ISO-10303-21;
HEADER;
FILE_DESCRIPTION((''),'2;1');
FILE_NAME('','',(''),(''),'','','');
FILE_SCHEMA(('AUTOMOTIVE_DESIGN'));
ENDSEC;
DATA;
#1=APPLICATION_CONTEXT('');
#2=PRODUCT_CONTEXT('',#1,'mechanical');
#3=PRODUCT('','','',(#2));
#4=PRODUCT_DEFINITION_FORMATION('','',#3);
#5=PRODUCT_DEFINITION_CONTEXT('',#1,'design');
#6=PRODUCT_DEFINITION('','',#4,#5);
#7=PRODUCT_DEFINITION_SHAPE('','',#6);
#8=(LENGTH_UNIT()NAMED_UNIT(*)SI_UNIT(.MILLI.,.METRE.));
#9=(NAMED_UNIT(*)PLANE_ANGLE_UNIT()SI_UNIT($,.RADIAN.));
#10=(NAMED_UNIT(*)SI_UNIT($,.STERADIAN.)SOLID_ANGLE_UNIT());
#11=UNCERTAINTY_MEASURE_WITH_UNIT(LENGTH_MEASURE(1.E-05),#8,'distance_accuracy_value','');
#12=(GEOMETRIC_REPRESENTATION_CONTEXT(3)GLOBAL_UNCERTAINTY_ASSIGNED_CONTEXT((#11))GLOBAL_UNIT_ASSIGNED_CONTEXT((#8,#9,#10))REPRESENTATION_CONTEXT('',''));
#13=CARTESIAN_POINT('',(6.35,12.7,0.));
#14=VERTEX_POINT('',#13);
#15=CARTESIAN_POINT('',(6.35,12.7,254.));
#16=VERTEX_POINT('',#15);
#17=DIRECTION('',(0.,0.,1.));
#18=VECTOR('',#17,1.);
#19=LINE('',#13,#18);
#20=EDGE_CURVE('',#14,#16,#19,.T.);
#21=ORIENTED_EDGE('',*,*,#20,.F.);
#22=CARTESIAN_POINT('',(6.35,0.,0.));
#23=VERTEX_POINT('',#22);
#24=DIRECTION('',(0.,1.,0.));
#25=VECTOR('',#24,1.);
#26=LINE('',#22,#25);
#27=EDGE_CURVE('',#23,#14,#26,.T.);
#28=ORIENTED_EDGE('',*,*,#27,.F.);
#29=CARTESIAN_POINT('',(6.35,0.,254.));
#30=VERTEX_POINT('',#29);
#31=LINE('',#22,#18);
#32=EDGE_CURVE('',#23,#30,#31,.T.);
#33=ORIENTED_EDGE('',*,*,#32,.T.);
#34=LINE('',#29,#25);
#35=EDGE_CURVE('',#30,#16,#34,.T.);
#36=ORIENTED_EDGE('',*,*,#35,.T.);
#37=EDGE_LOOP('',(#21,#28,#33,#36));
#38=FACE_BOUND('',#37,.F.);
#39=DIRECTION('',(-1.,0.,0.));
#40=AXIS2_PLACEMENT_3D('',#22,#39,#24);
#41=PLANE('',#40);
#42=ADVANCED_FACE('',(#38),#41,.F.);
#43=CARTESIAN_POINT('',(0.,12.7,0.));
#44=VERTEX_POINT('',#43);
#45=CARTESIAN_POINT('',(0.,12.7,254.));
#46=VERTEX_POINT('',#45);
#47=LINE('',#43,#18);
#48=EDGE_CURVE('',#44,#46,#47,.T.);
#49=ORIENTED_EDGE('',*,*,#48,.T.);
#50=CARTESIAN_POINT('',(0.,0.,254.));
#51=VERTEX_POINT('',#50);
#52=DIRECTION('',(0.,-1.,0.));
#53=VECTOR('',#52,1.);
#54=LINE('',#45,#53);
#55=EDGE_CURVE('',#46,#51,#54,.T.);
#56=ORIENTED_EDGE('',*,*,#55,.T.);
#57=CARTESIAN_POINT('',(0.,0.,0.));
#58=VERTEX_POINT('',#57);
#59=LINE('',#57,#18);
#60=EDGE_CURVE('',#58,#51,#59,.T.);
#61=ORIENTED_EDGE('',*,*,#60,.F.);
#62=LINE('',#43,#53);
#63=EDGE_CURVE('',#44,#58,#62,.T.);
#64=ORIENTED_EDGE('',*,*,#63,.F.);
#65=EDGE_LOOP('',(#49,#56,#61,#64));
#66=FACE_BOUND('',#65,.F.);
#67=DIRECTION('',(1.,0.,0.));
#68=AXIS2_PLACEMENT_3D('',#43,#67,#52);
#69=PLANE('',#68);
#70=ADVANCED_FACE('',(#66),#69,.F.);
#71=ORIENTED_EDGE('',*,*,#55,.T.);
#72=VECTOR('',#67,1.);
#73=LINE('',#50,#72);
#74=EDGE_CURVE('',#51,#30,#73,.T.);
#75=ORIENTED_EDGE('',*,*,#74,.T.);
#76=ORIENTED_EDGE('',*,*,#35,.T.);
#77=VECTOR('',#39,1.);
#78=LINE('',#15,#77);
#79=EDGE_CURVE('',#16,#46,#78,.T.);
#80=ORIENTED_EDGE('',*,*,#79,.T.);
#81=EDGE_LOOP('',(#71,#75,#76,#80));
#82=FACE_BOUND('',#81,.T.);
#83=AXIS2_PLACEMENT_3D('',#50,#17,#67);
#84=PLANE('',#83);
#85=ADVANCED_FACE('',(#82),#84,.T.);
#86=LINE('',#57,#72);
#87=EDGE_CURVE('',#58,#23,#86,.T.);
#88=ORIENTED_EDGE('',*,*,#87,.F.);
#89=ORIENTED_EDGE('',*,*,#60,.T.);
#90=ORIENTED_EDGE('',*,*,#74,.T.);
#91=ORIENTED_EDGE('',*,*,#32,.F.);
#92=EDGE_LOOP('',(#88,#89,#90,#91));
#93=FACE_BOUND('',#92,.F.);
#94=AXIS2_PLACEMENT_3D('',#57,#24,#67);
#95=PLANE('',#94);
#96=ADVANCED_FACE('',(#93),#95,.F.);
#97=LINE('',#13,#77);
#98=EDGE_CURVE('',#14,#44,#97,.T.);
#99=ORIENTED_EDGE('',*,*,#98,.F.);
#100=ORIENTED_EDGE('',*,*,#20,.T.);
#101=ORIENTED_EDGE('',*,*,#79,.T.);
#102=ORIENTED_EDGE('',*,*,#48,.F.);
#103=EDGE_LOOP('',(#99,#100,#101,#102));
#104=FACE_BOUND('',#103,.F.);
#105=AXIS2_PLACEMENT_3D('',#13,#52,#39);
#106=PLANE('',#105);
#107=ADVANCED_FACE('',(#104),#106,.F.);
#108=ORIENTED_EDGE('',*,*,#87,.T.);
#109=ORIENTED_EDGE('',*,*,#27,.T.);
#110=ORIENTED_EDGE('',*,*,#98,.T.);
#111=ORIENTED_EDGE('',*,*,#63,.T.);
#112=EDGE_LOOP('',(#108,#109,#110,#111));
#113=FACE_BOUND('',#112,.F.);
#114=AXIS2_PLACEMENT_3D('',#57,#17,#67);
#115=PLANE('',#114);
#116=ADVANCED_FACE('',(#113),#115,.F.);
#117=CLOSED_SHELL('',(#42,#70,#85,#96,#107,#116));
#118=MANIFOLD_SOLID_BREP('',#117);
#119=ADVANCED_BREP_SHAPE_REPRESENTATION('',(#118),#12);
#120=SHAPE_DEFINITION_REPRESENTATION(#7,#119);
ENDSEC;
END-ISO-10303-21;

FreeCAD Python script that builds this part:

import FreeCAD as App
import Part
import Sketcher

V = App.Vector
Q = App.Units.Quantity


def add_polygon(sketch, points):
    """Adds a closed chain of lines whose ends are joined by coincident constraints."""
    first, n = sketch.GeometryCount, len(points)
    for a, b in zip(points, points[1:] + points[:1]):
        sketch.addGeometry(Part.LineSegment(App.Vector(*a, 0), App.Vector(*b, 0)), False)
    for i in range(n):
        sketch.addConstraint(Sketcher.Constraint("Coincident", first + i, 2, first + (i + 1) % n, 1))

doc = App.newDocument("Part")
body = doc.addObject("PartDesign::Body", "Body")

# Sketch on XY plane
sketch1 = body.newObject("Sketcher::SketchObject", "Sketch")
sketch1.AttachmentSupport = (doc.getObject("XY_Plane"), [""])
sketch1.MapMode = "FlatFace"
add_polygon(sketch1, [(0, 13), (0, 0), (6, 0), (6, 13)])  # lines 0-3
sketch1.addConstraint(Sketcher.Constraint("Vertical", 0))
sketch1.addConstraint(Sketcher.Constraint("Horizontal", 1))
sketch1.addConstraint(Sketcher.Constraint("Vertical", 2))
sketch1.addConstraint(Sketcher.Constraint("Horizontal", 3))
sketch1.addConstraint(Sketcher.Constraint("Coincident", 0, 2, -1, 1))
sketch1.addConstraint(Sketcher.Constraint("DistanceY", 0, 2, 0, 1, Q("0.5 in")))
sketch1.addConstraint(Sketcher.Constraint("DistanceX", 1, 1, 1, 2, Q("0.25 in")))
pad1 = body.newObject("PartDesign::Pad", "Pad")
pad1.Profile = sketch1
pad1.Length = Q("10 in")

doc.recompute()
